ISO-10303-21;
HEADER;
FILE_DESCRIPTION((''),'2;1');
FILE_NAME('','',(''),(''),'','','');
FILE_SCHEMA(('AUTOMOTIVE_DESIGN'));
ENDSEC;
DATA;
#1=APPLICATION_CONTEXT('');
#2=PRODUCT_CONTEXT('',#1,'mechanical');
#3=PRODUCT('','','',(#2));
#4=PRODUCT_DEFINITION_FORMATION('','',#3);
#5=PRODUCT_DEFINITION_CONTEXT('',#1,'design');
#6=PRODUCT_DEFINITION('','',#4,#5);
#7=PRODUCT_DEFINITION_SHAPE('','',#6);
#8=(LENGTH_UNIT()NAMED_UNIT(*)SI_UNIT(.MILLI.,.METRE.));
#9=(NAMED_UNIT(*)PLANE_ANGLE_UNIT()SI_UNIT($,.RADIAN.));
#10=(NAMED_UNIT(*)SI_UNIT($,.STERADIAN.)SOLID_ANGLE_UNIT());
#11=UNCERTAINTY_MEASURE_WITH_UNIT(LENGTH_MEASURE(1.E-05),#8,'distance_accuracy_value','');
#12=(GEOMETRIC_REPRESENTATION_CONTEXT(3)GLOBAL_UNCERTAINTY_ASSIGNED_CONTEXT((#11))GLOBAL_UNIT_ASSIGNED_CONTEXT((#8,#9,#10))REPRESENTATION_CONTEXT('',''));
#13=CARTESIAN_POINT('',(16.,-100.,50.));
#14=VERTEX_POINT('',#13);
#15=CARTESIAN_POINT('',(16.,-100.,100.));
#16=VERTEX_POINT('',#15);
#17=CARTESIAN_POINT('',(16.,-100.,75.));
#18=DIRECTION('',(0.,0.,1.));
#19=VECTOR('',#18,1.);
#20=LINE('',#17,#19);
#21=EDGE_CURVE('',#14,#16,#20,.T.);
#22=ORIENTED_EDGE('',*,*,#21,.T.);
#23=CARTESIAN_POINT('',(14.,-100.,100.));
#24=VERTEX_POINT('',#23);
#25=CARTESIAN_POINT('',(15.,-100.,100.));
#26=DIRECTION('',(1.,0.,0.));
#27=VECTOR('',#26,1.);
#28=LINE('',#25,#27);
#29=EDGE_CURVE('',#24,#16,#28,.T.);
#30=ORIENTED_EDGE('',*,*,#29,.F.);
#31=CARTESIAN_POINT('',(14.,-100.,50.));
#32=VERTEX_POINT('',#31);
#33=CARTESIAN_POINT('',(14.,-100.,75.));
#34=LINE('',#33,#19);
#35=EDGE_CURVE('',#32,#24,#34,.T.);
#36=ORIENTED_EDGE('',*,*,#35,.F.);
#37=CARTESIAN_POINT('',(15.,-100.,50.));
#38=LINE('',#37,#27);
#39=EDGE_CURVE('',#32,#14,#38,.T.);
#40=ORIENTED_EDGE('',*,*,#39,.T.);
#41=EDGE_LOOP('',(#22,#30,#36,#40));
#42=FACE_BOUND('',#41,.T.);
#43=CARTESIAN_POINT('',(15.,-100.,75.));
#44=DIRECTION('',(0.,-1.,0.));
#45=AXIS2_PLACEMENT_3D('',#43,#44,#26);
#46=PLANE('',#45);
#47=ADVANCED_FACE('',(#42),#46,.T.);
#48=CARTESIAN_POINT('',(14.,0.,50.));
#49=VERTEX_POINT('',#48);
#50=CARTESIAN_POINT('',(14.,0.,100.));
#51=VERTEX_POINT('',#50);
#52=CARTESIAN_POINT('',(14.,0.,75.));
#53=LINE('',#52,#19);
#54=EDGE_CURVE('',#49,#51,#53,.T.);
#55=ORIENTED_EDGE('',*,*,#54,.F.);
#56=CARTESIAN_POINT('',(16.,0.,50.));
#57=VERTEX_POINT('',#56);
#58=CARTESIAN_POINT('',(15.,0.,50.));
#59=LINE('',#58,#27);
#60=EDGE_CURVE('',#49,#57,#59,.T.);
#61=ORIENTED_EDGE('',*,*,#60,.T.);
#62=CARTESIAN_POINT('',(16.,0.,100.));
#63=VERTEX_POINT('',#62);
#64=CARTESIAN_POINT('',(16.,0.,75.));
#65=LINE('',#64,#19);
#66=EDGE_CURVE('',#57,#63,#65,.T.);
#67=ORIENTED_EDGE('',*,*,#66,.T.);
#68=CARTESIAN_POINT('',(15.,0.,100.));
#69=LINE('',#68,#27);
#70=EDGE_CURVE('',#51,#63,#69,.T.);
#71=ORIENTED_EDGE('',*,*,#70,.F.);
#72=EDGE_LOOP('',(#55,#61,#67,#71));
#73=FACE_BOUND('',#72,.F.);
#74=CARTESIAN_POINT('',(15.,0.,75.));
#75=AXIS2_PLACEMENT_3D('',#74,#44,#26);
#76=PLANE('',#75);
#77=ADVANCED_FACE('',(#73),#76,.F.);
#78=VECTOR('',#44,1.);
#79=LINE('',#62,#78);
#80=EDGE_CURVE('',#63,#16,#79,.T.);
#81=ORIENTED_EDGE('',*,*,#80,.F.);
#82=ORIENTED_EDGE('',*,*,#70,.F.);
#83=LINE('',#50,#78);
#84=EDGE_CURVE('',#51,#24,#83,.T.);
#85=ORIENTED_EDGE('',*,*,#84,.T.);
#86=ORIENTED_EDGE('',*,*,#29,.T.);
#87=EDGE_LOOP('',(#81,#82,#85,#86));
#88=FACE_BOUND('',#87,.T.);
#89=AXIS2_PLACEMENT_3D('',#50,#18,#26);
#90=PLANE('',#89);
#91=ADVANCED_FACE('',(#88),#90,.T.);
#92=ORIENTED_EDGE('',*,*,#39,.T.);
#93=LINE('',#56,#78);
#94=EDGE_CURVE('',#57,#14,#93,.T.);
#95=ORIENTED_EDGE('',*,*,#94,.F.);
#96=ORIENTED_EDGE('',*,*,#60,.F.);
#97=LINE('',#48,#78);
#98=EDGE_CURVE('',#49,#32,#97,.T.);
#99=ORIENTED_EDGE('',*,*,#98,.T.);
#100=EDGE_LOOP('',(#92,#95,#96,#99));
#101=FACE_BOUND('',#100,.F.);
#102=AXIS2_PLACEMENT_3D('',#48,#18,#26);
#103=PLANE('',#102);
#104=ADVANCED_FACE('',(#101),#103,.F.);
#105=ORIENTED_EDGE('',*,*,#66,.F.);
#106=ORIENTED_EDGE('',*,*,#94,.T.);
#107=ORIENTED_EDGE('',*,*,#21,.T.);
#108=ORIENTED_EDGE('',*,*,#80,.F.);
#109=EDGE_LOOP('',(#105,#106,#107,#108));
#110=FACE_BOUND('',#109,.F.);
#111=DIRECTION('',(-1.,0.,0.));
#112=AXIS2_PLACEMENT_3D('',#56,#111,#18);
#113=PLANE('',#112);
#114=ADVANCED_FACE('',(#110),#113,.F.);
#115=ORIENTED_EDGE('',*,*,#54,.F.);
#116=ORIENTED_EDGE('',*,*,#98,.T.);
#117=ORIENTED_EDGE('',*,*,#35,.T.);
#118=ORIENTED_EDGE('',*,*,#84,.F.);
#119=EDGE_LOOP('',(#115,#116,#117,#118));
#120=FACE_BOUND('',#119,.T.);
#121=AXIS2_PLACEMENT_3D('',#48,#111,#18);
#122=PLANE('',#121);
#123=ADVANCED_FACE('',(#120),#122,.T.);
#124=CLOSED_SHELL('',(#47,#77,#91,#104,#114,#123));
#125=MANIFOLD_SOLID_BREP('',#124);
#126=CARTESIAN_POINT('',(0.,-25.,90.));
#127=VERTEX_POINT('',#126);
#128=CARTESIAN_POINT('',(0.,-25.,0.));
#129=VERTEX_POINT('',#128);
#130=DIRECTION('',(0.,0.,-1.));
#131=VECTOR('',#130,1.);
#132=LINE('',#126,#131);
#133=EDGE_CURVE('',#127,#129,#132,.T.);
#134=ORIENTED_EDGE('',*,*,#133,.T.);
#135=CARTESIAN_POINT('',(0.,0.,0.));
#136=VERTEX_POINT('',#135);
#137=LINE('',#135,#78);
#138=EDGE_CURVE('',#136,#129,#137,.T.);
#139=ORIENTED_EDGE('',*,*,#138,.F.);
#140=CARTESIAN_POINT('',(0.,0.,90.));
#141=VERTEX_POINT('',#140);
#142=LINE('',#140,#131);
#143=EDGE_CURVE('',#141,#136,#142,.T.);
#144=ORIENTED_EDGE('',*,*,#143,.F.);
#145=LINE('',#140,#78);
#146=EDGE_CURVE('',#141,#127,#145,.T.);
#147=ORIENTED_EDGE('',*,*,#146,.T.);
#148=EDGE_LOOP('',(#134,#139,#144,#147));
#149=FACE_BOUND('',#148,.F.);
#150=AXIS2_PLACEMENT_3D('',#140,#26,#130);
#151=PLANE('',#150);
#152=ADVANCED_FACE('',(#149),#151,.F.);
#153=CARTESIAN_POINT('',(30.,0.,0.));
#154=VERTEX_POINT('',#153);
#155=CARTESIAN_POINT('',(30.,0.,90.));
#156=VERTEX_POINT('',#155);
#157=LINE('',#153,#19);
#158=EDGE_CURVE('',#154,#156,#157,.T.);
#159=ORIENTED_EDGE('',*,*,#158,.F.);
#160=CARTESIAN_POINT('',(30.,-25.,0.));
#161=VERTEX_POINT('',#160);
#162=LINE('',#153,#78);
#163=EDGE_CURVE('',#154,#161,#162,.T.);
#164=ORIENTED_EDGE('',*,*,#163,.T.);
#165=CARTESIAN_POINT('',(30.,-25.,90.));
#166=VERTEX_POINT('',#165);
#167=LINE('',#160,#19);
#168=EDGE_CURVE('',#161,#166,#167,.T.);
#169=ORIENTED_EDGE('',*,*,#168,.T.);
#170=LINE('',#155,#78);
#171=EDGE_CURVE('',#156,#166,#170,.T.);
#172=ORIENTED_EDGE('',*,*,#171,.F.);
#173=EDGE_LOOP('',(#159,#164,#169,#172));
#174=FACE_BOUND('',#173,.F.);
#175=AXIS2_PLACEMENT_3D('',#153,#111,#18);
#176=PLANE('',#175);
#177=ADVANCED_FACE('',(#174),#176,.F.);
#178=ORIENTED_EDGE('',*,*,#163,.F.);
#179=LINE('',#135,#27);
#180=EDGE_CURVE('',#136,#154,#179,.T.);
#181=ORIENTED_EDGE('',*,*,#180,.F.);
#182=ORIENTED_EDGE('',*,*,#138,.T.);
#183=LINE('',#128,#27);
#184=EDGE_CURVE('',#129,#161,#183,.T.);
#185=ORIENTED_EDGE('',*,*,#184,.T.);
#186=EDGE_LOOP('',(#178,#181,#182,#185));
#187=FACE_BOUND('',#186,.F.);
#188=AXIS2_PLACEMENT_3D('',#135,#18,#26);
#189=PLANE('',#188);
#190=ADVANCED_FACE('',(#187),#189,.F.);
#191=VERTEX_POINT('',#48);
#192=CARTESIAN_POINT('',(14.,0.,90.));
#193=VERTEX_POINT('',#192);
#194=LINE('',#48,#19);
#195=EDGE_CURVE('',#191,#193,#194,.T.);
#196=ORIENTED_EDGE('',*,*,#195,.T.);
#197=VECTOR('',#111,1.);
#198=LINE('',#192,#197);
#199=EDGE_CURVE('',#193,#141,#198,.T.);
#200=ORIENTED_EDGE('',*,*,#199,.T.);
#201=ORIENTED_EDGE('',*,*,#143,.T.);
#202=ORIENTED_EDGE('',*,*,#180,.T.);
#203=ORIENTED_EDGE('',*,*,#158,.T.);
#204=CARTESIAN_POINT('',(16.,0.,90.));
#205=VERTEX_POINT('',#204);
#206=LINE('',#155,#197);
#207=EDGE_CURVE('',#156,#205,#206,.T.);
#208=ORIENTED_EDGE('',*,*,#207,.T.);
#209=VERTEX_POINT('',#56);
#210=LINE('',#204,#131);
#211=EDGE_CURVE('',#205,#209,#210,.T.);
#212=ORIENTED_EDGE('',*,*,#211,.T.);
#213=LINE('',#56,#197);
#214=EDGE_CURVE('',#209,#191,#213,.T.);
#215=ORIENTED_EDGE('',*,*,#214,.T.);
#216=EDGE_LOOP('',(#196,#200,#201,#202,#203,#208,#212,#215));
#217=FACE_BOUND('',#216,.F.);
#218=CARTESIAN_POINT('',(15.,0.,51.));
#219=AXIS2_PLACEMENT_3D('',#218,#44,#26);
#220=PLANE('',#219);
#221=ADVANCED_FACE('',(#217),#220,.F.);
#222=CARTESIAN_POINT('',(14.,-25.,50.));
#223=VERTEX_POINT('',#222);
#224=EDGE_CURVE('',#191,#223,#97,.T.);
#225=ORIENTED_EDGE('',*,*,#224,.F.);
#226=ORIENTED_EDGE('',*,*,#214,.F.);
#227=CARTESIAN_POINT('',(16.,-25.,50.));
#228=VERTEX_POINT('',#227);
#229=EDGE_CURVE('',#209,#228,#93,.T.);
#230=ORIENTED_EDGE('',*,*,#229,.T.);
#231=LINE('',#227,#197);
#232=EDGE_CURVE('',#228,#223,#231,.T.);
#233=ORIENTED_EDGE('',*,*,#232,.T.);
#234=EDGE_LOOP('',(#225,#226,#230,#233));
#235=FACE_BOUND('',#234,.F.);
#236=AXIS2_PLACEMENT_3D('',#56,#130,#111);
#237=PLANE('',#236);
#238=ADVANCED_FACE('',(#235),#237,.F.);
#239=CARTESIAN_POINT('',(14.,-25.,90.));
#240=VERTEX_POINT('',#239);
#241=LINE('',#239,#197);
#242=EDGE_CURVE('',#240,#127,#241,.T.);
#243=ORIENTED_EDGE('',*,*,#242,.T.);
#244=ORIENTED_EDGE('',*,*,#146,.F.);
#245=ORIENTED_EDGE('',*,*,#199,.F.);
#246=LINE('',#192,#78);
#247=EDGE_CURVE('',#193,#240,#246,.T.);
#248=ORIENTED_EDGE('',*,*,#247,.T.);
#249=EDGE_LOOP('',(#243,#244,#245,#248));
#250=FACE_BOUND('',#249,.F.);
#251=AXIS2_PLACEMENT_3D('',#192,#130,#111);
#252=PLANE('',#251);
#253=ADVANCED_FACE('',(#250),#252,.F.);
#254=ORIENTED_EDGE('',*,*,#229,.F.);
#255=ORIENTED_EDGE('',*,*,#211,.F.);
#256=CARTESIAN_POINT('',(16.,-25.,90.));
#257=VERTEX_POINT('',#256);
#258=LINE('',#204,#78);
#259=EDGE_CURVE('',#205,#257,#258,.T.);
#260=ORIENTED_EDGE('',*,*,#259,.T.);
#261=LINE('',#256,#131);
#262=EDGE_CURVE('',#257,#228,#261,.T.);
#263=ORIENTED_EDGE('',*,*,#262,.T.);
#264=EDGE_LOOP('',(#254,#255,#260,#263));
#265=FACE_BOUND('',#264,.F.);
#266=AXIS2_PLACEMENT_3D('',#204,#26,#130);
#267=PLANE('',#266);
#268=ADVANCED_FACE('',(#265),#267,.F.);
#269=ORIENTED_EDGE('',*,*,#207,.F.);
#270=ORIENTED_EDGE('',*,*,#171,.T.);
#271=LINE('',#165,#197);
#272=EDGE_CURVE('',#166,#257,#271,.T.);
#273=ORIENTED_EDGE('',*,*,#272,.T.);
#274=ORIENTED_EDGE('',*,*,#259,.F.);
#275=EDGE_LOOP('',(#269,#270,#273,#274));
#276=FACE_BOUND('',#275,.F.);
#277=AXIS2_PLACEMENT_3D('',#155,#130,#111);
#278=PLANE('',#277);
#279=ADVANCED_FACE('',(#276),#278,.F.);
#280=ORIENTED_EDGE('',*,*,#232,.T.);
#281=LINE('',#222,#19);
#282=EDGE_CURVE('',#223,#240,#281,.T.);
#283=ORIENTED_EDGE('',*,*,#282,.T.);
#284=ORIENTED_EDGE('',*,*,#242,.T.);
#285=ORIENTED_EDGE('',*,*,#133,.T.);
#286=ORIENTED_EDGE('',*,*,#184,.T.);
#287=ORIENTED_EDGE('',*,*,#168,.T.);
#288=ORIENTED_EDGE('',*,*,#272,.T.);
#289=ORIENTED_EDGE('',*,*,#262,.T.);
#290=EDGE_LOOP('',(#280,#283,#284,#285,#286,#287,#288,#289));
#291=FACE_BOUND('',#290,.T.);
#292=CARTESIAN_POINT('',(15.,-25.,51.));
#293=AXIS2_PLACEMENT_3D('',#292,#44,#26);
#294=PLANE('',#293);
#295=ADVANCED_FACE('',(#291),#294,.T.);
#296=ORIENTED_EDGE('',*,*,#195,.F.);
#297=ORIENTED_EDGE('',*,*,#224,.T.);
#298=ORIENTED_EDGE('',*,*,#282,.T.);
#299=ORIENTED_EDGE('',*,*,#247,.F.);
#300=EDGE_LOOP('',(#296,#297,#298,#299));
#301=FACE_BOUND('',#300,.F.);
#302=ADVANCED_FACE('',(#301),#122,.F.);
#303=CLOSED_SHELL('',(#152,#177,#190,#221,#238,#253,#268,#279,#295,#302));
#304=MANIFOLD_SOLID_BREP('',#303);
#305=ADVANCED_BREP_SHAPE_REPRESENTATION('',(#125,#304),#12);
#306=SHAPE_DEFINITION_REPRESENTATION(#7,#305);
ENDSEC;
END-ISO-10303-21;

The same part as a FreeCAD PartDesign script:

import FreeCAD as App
import Part
import Sketcher

V = App.Vector
Q = App.Units.Quantity

doc = App.newDocument("Part")
body = doc.addObject("PartDesign::Body", "Body")

# Sketch on XZ plane
sketch1 = body.newObject("Sketcher::SketchObject", "Sketch")
sketch1.AttachmentSupport = (doc.getObject("XZ_Plane"), [""])
sketch1.MapMode = "FlatFace"
sketch1.addGeometry(Part.LineSegment(V(0, 90, 0), V(0, 0, 0)), False)
sketch1.addGeometry(Part.LineSegment(V(0, 0, 0), V(30, 0, 0)), False)
sketch1.addGeometry(Part.LineSegment(V(30, 0, 0), V(30, 90, 0)), False)
sketch1.addGeometry(Part.LineSegment(V(30, 90, 0), V(16, 90, 0)), False)
sketch1.addGeometry(Part.LineSegment(V(16, 90, 0), V(16, 50, 0)), False)
sketch1.addGeometry(Part.LineSegment(V(16, 50, 0), V(14, 50, 0)), False)
sketch1.addGeometry(Part.LineSegment(V(14, 50, 0), V(14, 90, 0)), False)
sketch1.addGeometry(Part.LineSegment(V(14, 90, 0), V(0, 90, 0)), False)
sketch1.addConstraint(Sketcher.Constraint("Coincident", 0, 2, 1, 1))
sketch1.addConstraint(Sketcher.Constraint("Coincident", 1, 2, 2, 1))
sketch1.addConstraint(Sketcher.Constraint("Coincident", 2, 2, 3, 1))
sketch1.addConstraint(Sketcher.Constraint("Coincident", 3, 2, 4, 1))
sketch1.addConstraint(Sketcher.Constraint("Coincident", 4, 2, 5, 1))
sketch1.addConstraint(Sketcher.Constraint("Coincident", 5, 2, 6, 1))
sketch1.addConstraint(Sketcher.Constraint("Coincident", 6, 2, 7, 1))
sketch1.addConstraint(Sketcher.Constraint("Coincident", 7, 2, 0, 1))
sketch1.addConstraint(Sketcher.Constraint("Vertical", 0))
sketch1.addConstraint(Sketcher.Constraint("Horizontal", 1))
sketch1.addConstraint(Sketcher.Constraint("Vertical", 2))
sketch1.addConstraint(Sketcher.Constraint("Horizontal", 3))
sketch1.addConstraint(Sketcher.Constraint("Vertical", 4))
sketch1.addConstraint(Sketcher.Constraint("Horizontal", 5))
sketch1.addConstraint(Sketcher.Constraint("Vertical", 6))
sketch1.addConstraint(Sketcher.Constraint("Horizontal", 7))
sketch1.addConstraint(Sketcher.Constraint("Coincident", 0, 2, -1, 1))
sketch1.addConstraint(Sketcher.Constraint("Horizontal", 3, 2, 6, 2))
sketch1.addConstraint(Sketcher.Constraint("Equal", 3, 7))
sketch1.addConstraint(Sketcher.Constraint("DistanceX", 1, 1, 1, 2, Q("30 mm")))
sketch1.addConstraint(Sketcher.Constraint("DistanceX", 3, 2, 3, 1, Q("14 mm")))
sketch1.addConstraint(Sketcher.Constraint("DistanceY", 0, 2, 0, 1, Q("90 mm")))
sketch1.addConstraint(Sketcher.Constraint("DistanceY", 4, 2, 4, 1, Q("40 mm")))
pad1 = body.newObject("PartDesign::Pad", "Pad")
pad1.Profile = sketch1
pad1.Length = 25
body2 = doc.addObject("PartDesign::Body", "Body001")

# Sketch on XZ plane
sketch2 = body2.newObject("Sketcher::SketchObject", "Sketch001")
sketch2.AttachmentSupport = (doc.getObject("XZ_Plane001"), [""])
sketch2.MapMode = "FlatFace"
sketch2.addGeometry(Part.LineSegment(V(14, 100, 0), V(14, 50, 0)), False)
sketch2.addGeometry(Part.LineSegment(V(14, 50, 0), V(16, 50, 0)), False)
sketch2.addGeometry(Part.LineSegment(V(16, 50, 0), V(16, 100, 0)), False)
sketch2.addGeometry(Part.LineSegment(V(16, 100, 0), V(14, 100, 0)), False)
sketch2.addConstraint(Sketcher.Constraint("Coincident", 0, 2, 1, 1))
sketch2.addConstraint(Sketcher.Constraint("Coincident", 1, 2, 2, 1))
sketch2.addConstraint(Sketcher.Constraint("Coincident", 2, 2, 3, 1))
sketch2.addConstraint(Sketcher.Constraint("Coincident", 3, 2, 0, 1))
sketch2.addConstraint(Sketcher.Constraint("Vertical", 0))
sketch2.addConstraint(Sketcher.Constraint("Horizontal", 1))
sketch2.addConstraint(Sketcher.Constraint("Vertical", 2))
sketch2.addConstraint(Sketcher.Constraint("Horizontal", 3))
sketch2.addConstraint(Sketcher.Constraint("DistanceX", 1, 1, 1, 2, Q("2 mm")))
sketch2.addConstraint(Sketcher.Constraint("DistanceY", 0, 2, 0, 1, Q("50 mm")))
sketch2.addConstraint(Sketcher.Constraint("DistanceX", -1, 1, 0, 2, Q("14 mm")))
sketch2.addConstraint(Sketcher.Constraint("DistanceY", -1, 1, 0, 2, Q("50 mm")))
pad2 = body2.newObject("PartDesign::Pad", "Pad001")
pad2.Profile = sketch2
pad2.Length = 100

doc.recompute()
